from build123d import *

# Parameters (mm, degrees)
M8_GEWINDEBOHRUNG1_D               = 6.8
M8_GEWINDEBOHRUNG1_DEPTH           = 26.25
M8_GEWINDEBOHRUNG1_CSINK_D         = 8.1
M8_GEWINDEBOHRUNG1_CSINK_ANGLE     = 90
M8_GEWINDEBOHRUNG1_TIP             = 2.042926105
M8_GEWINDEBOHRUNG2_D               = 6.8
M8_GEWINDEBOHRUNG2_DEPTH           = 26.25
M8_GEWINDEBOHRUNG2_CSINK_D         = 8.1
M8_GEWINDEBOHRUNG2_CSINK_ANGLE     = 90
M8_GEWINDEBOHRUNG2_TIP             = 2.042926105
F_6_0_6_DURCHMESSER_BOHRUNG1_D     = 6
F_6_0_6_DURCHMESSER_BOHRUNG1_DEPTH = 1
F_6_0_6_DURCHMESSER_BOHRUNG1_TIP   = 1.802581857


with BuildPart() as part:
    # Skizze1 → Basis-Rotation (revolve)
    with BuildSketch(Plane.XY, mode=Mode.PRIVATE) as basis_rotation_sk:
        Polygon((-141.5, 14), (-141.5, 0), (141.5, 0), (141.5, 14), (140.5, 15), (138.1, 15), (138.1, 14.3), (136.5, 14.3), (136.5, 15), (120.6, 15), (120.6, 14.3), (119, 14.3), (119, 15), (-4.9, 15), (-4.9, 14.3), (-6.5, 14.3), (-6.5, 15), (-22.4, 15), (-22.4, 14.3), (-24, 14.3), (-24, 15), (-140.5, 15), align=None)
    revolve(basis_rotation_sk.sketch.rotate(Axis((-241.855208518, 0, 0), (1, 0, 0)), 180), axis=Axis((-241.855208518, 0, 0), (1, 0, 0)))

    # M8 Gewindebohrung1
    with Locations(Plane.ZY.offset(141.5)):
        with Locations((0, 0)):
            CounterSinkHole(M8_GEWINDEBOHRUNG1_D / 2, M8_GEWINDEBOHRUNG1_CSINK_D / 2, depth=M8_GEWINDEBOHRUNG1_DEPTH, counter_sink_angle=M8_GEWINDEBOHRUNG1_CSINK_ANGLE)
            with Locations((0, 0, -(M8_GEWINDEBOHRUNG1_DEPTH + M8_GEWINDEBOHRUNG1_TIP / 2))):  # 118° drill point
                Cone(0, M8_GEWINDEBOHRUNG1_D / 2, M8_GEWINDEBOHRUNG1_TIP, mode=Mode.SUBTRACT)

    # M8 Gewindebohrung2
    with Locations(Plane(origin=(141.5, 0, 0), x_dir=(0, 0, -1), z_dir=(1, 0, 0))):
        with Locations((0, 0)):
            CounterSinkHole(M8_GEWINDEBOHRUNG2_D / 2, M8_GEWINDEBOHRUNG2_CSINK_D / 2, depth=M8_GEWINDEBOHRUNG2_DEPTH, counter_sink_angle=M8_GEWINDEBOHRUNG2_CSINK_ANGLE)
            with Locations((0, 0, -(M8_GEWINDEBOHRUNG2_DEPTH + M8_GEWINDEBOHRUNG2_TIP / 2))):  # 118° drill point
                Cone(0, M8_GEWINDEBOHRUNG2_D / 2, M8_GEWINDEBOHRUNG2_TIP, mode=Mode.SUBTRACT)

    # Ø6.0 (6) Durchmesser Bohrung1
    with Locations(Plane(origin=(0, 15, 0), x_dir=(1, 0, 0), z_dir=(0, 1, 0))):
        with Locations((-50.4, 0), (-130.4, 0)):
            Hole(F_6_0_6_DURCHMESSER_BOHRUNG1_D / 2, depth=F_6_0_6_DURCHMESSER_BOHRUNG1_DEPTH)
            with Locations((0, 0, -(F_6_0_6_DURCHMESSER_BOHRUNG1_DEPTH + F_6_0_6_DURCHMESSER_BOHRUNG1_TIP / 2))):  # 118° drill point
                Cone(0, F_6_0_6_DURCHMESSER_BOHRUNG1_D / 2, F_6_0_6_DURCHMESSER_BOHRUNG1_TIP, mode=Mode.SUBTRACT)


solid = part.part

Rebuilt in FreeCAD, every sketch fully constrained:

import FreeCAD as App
import Part
import Sketcher
from FreeCAD import Vector

doc = App.newDocument("Part")
body = doc.addObject("PartDesign::Body", "Body")

# Sketch on XY plane
sketch1 = body.newObject("Sketcher::SketchObject", "Sketch")
sketch1.AttachmentSupport = (doc.getObject("XY_Plane"), [""])
sketch1.MapMode = "FlatFace"
sketch1.addGeometry(Part.LineSegment(Vector(-141.5, 14, 0), Vector(-141.5, 0, 0)), False)
sketch1.addGeometry(Part.LineSegment(Vector(-141.5, 0, 0), Vector(141.5, 0, 0)), False)
sketch1.addGeometry(Part.LineSegment(Vector(141.5, 0, 0), Vector(141.5, 14, 0)), False)
sketch1.addGeometry(Part.LineSegment(Vector(141.5, 14, 0), Vector(140.5, 15, 0)), False)
sketch1.addGeometry(Part.LineSegment(Vector(140.5, 15, 0), Vector(138.1, 15, 0)), False)
sketch1.addGeometry(Part.LineSegment(Vector(138.1, 15, 0), Vector(138.1, 14.3, 0)), False)
sketch1.addGeometry(Part.LineSegment(Vector(138.1, 14.3, 0), Vector(136.5, 14.3, 0)), False)
sketch1.addGeometry(Part.LineSegment(Vector(136.5, 14.3, 0), Vector(136.5, 15, 0)), False)
sketch1.addGeometry(Part.LineSegment(Vector(136.5, 15, 0), Vector(120.6, 15, 0)), False)
sketch1.addGeometry(Part.LineSegment(Vector(120.6, 15, 0), Vector(120.6, 14.3, 0)), False)
sketch1.addGeometry(Part.LineSegment(Vector(120.6, 14.3, 0), Vector(119, 14.3, 0)), False)
sketch1.addGeometry(Part.LineSegment(Vector(119, 14.3, 0), Vector(119, 15, 0)), False)
sketch1.addGeometry(Part.LineSegment(Vector(119, 15, 0), Vector(-4.9, 15, 0)), False)
sketch1.addGeometry(Part.LineSegment(Vector(-4.9, 15, 0), Vector(-4.9, 14.3, 0)), False)
sketch1.addGeometry(Part.LineSegment(Vector(-4.9, 14.3, 0), Vector(-6.5, 14.3, 0)), False)
sketch1.addGeometry(Part.LineSegment(Vector(-6.5, 14.3, 0), Vector(-6.5, 15, 0)), False)
sketch1.addGeometry(Part.LineSegment(Vector(-6.5, 15, 0), Vector(-22.4, 15, 0)), False)
sketch1.addGeometry(Part.LineSegment(Vector(-22.4, 15, 0), Vector(-22.4, 14.3, 0)), False)
sketch1.addGeometry(Part.LineSegment(Vector(-22.4, 14.3, 0), Vector(-24, 14.3, 0)), False)
sketch1.addGeometry(Part.LineSegment(Vector(-24, 14.3, 0), Vector(-24, 15, 0)), False)
sketch1.addGeometry(Part.LineSegment(Vector(-24, 15, 0), Vector(-140.5, 15, 0)), False)
sketch1.addGeometry(Part.LineSegment(Vector(-140.5, 15, 0), Vector(-141.5, 14, 0)), False)
sketch1.addConstraint(Sketcher.Constraint("Coincident", 0, 2, 1, 1))
sketch1.addConstraint(Sketcher.Constraint("Coincident", 1, 2, 2, 1))
sketch1.addConstraint(Sketcher.Constraint("Coincident", 2, 2, 3, 1))
sketch1.addConstraint(Sketcher.Constraint("Coincident", 3, 2, 4, 1))
sketch1.addConstraint(Sketcher.Constraint("Coincident", 4, 2, 5, 1))
sketch1.addConstraint(Sketcher.Constraint("Coincident", 5, 2, 6, 1))
sketch1.addConstraint(Sketcher.Constraint("Coincident", 6, 2, 7, 1))
sketch1.addConstraint(Sketcher.Constraint("Coincident", 7, 2, 8, 1))
sketch1.addConstraint(Sketcher.Constraint("Coincident", 8, 2, 9, 1))
sketch1.addConstraint(Sketcher.Constraint("Coincident", 9, 2, 10, 1))
sketch1.addConstraint(Sketcher.Constraint("Coincident", 10, 2, 11, 1))
sketch1.addConstraint(Sketcher.Constraint("Coincident", 11, 2, 12, 1))
sketch1.addConstraint(Sketcher.Constraint("Coincident", 12, 2, 13, 1))
sketch1.addConstraint(Sketcher.Constraint("Coincident", 13, 2, 14, 1))
sketch1.addConstraint(Sketcher.Constraint("Coincident", 14, 2, 15, 1))
sketch1.addConstraint(Sketcher.Constraint("Coincident", 15, 2, 16, 1))
sketch1.addConstraint(Sketcher.Constraint("Coincident", 16, 2, 17, 1))
sketch1.addConstraint(Sketcher.Constraint("Coincident", 17, 2, 18, 1))
sketch1.addConstraint(Sketcher.Constraint("Coincident", 18, 2, 19, 1))
sketch1.addConstraint(Sketcher.Constraint("Coincident", 19, 2, 20, 1))
sketch1.addConstraint(Sketcher.Constraint("Coincident", 20, 2, 21, 1))
sketch1.addConstraint(Sketcher.Constraint("Coincident", 21, 2, 0, 1))
sketch1.addConstraint(Sketcher.Constraint("Vertical", 0))
sketch1.addConstraint(Sketcher.Constraint("Horizontal", 1))
sketch1.addConstraint(Sketcher.Constraint("Vertical", 2))
sketch1.addConstraint(Sketcher.Constraint("Horizontal", 4))
sketch1.addConstraint(Sketcher.Constraint("Vertical", 5))
sketch1.addConstraint(Sketcher.Constraint("Horizontal", 6))
sketch1.addConstraint(Sketcher.Constraint("Vertical", 7))
sketch1.addConstraint(Sketcher.Constraint("Horizontal", 8))
sketch1.addConstraint(Sketcher.Constraint("Vertical", 9))
sketch1.addConstraint(Sketcher.Constraint("Horizontal", 10))
sketch1.addConstraint(Sketcher.Constraint("Vertical", 11))
sketch1.addConstraint(Sketcher.Constraint("Horizontal", 12))
sketch1.addConstraint(Sketcher.Constraint("Vertical", 13))
sketch1.addConstraint(Sketcher.Constraint("Horizontal", 14))
sketch1.addConstraint(Sketcher.Constraint("Vertical", 15))
sketch1.addConstraint(Sketcher.Constraint("Horizontal", 16))
sketch1.addConstraint(Sketcher.Constraint("Vertical", 17))
sketch1.addConstraint(Sketcher.Constraint("Horizontal", 18))
sketch1.addConstraint(Sketcher.Constraint("Vertical", 19))
sketch1.addConstraint(Sketcher.Constraint("Horizontal", 20))
sketch1.addConstraint(Sketcher.Constraint("Symmetric", 0, 2, 1, 2, -1, 1))
sketch1.addConstraint(Sketcher.Constraint("Symmetric", 3, 2, 20, 2, -2))
sketch1.addConstraint(Sketcher.Constraint("Perpendicular", 3, 21))
sketch1.addConstraint(Sketcher.Constraint("Horizontal", 4, 2, 7, 2))
sketch1.addConstraint(Sketcher.Constraint("Horizontal", 6, 2, 9, 2))
sketch1.addConstraint(Sketcher.Constraint("Horizontal", 8, 2, 11, 2))
sketch1.addConstraint(Sketcher.Constraint("Horizontal", 10, 2, 13, 2))
sketch1.addConstraint(Sketcher.Constraint("Horizontal", 12, 2, 15, 2))
sketch1.addConstraint(Sketcher.Constraint("Horizontal", 14, 2, 17, 2))
sketch1.addConstraint(Sketcher.Constraint("Horizontal", 2, 2, 21, 2))
sketch1.addConstraint(Sketcher.Constraint("Equal", 6, 10))
sketch1.addConstraint(Sketcher.Constraint("Equal", 10, 14))
sketch1.addConstraint(Sketcher.Constraint("Equal", 8, 16))
sketch1.addConstraint(Sketcher.Constraint("Equal", 14, 18))
sketch1.addConstraint(Sketcher.Constraint("DistanceX", 1, 1, 1, 2, 283.0))
sketch1.addConstraint(Sketcher.Constraint("DistanceY", 0, 2, 0, 1, 14.0))
sketch1.addConstraint(Sketcher.Constraint("DistanceX", 4, 2, 4, 1, 2.4))
sketch1.addConstraint(Sketcher.Constraint("DistanceX", 6, 2, 6, 1, 1.6))
sketch1.addConstraint(Sketcher.Constraint("DistanceX", 8, 2, 8, 1, 15.9))
sketch1.addConstraint(Sketcher.Constraint("DistanceX", 12, 2, 12, 1, 123.9))
sketch1.addConstraint(Sketcher.Constraint("DistanceX", 20, 2, 20, 1, 116.5))
sketch1.addConstraint(Sketcher.Constraint("DistanceY", 5, 2, 5, 1, 0.7))
revolution = body.newObject("PartDesign::Revolution", "Revolution")
revolution.Profile = sketch1
revolution.ReferenceAxis = (sketch1, ["H_Axis"])
revolution.Angle = 360

# Sketch on YZ plane
sketch2 = body.newObject("Sketcher::SketchObject", "Sketch001")
sketch2.AttachmentSupport = (doc.getObject("YZ_Plane"), [""])
sketch2.MapMode = "FlatFace"
sketch2.AttachmentOffset = App.Placement(Vector(0, 0, -141.5), App.Rotation())
sketch2.addGeometry(Part.Circle(Vector(0, 0, 0), Vector(0, 0, 1), 3.4), False)
sketch2.addConstraint(Sketcher.Constraint("Coincident", 0, 3, -1, 1))
sketch2.addConstraint(Sketcher.Constraint("Diameter", 0, 6.8))
doc.recompute()
hole = body.newObject("PartDesign::Hole", "Hole")
hole.Profile = sketch2
hole.ThreadType = "None"
hole.Diameter = 6.8
hole.DepthType = "Dimension"
hole.Depth = 26.25
hole.DrillPoint = "Angled"
hole.DrillPointAngle = 118
hole.HoleCutType = "Countersink"
hole.HoleCutDiameter = 8.1
hole.HoleCutCountersinkAngle = 90
hole.Reversed = True

# Sketch on YZ plane
sketch3 = body.newObject("Sketcher::SketchObject", "Sketch002")
sketch3.AttachmentSupport = (doc.getObject("YZ_Plane"), [""])
sketch3.MapMode = "FlatFace"
sketch3.AttachmentOffset = App.Placement(Vector(0, 0, 141.5), App.Rotation())
sketch3.addGeometry(Part.Circle(Vector(0, 0, 0), Vector(0, 0, 1), 3.4), False)
sketch3.addConstraint(Sketcher.Constraint("Coincident", 0, 3, -1, 1))
sketch3.addConstraint(Sketcher.Constraint("Diameter", 0, 6.8))
doc.recompute()
hole2 = body.newObject("PartDesign::Hole", "Hole001")
hole2.Profile = sketch3
hole2.ThreadType = "None"
hole2.Diameter = 6.8
hole2.DepthType = "Dimension"
hole2.Depth = 26.25
hole2.DrillPoint = "Angled"
hole2.DrillPointAngle = 118
hole2.HoleCutType = "Countersink"
hole2.HoleCutDiameter = 8.1
hole2.HoleCutCountersinkAngle = 90

# Sketch on XZ plane
sketch4 = body.newObject("Sketcher::SketchObject", "Sketch003")
sketch4.AttachmentSupport = (doc.getObject("XZ_Plane"), [""])
sketch4.MapMode = "FlatFace"
sketch4.AttachmentOffset = App.Placement(Vector(0, 0, -15), App.Rotation())
sketch4.addGeometry(Part.Circle(Vector(-50.4, 0, 0), Vector(0, 0, 1), 3), False)
sketch4.addGeometry(Part.Circle(Vector(-130.4, 0, 0), Vector(0, 0, 1), 3), False)
sketch4.addConstraint(Sketcher.Constraint("Equal", 0, 1))
sketch4.addConstraint(Sketcher.Constraint("PointOnObject", 0, 3, -1))
sketch4.addConstraint(Sketcher.Constraint("PointOnObject", 1, 3, -1))
sketch4.addConstraint(Sketcher.Constraint("Diameter", 0, 6.0))
sketch4.addConstraint(Sketcher.Constraint("DistanceX", 1, 3, 0, 3, 80.0))
sketch4.addConstraint(Sketcher.Constraint("DistanceX", 0, 3, -1, 1, 50.4))
doc.recompute()
hole3 = body.newObject("PartDesign::Hole", "Hole002")
hole3.Profile = sketch4
hole3.ThreadType = "None"
hole3.Diameter = 6
hole3.DepthType = "Dimension"
hole3.Depth = 1
hole3.DrillPoint = "Angled"
hole3.DrillPointAngle = 118
hole3.Reversed = True

doc.recompute()
